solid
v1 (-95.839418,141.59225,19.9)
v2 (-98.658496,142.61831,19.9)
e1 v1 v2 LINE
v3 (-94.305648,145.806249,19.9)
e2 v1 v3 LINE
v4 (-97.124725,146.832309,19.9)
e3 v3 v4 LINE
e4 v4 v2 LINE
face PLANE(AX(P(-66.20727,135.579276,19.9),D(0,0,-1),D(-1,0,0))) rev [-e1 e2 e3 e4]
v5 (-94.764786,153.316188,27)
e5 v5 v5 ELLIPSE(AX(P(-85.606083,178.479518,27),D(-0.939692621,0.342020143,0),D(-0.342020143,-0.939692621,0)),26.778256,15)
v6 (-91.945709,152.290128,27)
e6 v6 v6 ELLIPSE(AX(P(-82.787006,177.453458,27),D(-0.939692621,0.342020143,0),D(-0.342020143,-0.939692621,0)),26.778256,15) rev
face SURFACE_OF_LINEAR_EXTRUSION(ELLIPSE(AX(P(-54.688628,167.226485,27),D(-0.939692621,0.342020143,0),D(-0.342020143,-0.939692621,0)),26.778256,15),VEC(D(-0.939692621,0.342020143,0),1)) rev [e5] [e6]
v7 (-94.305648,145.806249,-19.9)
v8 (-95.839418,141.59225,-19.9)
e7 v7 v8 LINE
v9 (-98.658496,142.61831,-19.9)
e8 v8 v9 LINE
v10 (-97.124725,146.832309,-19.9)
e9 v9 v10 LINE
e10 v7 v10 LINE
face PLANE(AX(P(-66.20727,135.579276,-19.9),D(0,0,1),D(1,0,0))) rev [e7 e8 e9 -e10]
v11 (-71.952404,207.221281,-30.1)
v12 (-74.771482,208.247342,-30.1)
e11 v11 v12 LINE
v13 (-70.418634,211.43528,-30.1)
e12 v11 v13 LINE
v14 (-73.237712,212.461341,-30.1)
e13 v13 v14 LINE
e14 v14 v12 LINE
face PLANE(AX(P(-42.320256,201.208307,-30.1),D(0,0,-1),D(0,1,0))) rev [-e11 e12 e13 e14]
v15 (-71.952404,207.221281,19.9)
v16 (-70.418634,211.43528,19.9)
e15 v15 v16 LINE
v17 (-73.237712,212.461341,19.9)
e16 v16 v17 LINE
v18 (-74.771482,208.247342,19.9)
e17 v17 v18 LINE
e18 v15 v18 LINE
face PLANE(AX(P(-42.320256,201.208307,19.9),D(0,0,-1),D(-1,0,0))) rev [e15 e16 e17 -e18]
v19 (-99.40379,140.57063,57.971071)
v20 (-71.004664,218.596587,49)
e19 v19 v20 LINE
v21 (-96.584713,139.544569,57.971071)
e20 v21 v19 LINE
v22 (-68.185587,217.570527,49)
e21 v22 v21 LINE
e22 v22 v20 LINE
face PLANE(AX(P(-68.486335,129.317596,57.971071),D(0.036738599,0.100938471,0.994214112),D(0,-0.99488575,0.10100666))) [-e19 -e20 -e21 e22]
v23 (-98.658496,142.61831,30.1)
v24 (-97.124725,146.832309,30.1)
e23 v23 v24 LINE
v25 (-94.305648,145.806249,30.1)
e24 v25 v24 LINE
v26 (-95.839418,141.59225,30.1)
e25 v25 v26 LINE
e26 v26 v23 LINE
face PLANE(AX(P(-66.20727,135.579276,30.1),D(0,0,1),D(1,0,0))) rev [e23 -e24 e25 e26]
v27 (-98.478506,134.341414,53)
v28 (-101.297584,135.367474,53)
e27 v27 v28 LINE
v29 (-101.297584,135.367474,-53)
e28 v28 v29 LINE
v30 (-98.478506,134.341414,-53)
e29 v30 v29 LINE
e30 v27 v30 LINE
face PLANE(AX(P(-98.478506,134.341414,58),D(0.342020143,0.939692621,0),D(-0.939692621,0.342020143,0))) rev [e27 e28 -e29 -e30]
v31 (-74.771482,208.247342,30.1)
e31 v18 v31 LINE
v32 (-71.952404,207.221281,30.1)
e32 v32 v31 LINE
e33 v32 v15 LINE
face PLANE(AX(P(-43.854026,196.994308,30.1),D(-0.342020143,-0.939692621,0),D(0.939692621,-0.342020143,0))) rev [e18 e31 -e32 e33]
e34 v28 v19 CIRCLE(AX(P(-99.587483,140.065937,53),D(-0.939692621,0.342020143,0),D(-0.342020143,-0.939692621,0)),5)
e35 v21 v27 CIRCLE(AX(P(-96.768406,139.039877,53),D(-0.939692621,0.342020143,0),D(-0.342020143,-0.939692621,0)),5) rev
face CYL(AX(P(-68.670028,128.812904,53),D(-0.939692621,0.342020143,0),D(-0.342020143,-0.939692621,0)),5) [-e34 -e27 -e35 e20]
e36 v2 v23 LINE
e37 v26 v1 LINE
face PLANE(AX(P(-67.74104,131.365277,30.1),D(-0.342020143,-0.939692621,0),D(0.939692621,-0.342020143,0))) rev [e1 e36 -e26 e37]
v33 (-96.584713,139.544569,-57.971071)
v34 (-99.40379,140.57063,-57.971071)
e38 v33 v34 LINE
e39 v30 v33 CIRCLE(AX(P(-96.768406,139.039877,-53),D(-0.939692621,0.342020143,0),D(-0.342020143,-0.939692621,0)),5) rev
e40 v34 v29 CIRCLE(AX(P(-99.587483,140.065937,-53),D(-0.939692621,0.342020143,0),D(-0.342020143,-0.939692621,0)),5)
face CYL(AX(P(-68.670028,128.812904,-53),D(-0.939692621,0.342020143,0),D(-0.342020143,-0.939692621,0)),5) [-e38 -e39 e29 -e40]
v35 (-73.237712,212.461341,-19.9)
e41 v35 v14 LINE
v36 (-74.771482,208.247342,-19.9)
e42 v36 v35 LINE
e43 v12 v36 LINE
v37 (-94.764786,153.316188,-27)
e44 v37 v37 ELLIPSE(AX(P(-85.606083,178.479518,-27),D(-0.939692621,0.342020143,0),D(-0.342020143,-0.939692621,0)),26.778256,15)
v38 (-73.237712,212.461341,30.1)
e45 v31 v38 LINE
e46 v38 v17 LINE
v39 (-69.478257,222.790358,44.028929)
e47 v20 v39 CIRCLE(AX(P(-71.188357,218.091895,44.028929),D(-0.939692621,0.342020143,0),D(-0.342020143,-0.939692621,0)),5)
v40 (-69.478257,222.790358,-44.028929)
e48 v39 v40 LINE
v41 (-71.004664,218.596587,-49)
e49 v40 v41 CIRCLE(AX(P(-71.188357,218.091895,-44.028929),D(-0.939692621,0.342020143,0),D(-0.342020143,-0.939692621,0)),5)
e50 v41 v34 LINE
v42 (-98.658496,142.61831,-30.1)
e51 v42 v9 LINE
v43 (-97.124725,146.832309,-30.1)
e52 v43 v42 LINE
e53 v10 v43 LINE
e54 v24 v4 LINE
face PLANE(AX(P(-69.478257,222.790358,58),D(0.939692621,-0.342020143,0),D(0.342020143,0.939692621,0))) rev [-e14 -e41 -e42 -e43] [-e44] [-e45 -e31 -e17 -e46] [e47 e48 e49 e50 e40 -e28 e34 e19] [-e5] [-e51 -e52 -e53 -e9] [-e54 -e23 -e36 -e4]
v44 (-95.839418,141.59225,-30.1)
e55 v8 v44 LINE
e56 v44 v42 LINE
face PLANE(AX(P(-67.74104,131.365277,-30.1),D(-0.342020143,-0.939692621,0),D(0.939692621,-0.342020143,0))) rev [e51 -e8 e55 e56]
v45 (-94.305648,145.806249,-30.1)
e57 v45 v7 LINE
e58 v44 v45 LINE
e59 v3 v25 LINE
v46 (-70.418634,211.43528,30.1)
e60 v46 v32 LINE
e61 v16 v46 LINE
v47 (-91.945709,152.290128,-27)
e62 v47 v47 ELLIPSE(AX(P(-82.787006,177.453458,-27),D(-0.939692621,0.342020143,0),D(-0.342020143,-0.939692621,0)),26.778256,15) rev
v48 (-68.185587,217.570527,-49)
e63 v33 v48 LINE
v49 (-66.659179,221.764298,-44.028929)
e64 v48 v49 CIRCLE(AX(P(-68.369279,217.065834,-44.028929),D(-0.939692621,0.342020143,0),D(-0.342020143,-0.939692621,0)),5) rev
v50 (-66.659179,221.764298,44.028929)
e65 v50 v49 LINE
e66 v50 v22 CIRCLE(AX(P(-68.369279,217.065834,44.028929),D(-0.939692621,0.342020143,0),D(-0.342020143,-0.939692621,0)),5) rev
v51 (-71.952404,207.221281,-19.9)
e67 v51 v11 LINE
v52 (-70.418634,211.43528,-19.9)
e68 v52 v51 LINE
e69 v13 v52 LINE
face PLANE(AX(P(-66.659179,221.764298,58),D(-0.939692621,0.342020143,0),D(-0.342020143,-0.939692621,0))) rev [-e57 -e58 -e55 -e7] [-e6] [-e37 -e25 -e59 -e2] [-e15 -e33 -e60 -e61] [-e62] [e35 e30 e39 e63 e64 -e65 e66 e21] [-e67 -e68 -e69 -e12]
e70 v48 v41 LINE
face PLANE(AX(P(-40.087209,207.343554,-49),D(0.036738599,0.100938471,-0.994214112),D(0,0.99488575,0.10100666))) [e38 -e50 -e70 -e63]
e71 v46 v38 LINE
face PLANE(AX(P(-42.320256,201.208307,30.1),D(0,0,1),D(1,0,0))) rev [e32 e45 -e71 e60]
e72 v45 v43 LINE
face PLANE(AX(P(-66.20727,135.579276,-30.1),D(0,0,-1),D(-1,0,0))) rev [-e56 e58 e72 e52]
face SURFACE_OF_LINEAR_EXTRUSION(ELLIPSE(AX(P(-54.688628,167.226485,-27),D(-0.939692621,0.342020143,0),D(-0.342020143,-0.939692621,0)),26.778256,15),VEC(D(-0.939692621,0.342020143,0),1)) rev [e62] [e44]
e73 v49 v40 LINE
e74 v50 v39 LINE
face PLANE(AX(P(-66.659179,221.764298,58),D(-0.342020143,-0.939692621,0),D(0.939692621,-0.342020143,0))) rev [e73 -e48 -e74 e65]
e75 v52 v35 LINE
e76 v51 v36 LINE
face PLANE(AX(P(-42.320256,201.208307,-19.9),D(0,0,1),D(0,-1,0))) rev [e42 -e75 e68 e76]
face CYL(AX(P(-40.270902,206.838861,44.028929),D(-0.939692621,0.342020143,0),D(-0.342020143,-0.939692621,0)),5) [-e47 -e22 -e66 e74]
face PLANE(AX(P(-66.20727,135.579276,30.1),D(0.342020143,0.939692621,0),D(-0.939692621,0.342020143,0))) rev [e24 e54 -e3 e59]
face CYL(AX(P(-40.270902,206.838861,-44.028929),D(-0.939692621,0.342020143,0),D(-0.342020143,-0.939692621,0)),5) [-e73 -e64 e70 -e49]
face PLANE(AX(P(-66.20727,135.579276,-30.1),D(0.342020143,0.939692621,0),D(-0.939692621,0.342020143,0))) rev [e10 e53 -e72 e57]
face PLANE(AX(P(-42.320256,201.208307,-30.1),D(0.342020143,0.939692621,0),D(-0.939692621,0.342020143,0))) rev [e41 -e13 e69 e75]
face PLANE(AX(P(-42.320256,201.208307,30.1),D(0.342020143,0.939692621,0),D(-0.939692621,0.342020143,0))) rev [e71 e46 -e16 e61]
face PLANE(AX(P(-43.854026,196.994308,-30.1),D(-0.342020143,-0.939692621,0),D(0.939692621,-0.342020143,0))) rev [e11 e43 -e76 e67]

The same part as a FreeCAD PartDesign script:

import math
import FreeCAD as App
import Part
import Sketcher
Q = App.Units.Quantity

doc = App.newDocument("Part")
params = doc.addObject("Spreadsheet::Sheet", "Params")
for row, (alias, value) in enumerate([
    ("sketch1_length", "3 mm"),
    ("pad1_length", "116 mm"),
    ("sketch2_radius", "5 mm"),
    ("sketch2_width", "106 mm"),
    ("pocket1_length", "3 mm"),
    ("sketch3_width", "10.2 mm"),
    ("sketch4_width", "10.2 mm"),
    ("sketch5_width", "10.2 mm"),
    ("sketch6_width", "10.2 mm"),
], start=1):
    params.set(f"A{row}", alias)
    params.set(f"B{row}", "=" + value)
    params.setAlias(f"B{row}", alias)

body = doc.addObject("PartDesign::Body", "Body")

sketch1 = body.newObject("Sketcher::SketchObject", "Sketch")
sketch1.AttachmentSupport = (doc.getObject("XY_Plane"), [""])
sketch1.MapMode = "FlatFace"
sketch1.addGeometry([
    Part.LineSegment(App.Vector(-66.7, 221.8, 0), App.Vector(-69.5, 222.8, 0)),
    Part.LineSegment(App.Vector(-69.5, 222.8, 0), App.Vector(-101.3, 135.4, 0)),
    Part.LineSegment(App.Vector(-101.3, 135.4, 0), App.Vector(-98.5, 134.3, 0)),
    Part.LineSegment(App.Vector(-98.5, 134.3, 0), App.Vector(-66.7, 221.8, 0)),
], False)
sketch1.addConstraint([
    Sketcher.Constraint("Coincident", 0, 2, 1, 1),
    Sketcher.Constraint("Coincident", 1, 2, 2, 1),
    Sketcher.Constraint("Coincident", 2, 2, 3, 1),
    Sketcher.Constraint("Coincident", 3, 2, 0, 1),
    Sketcher.Constraint("Perpendicular", 0, 1),
    Sketcher.Constraint("Perpendicular", 1, 2),
    Sketcher.Constraint("Perpendicular", 2, 3),
    Sketcher.Constraint("Angle", 0, Q("160 deg")),
    Sketcher.Constraint("Distance", 0, Q("3 mm")),
    Sketcher.Constraint("Distance", 1, Q("93.03349 mm")),
    Sketcher.Constraint("DistanceX", 3, 2, -1, 1, Q("66.659179 mm")),
    Sketcher.Constraint("DistanceY", -1, 1, 0, 2, Q("222.790358 mm")),
])
sketch1.setExpression("Constraints[8]", "Params.sketch1_length")
pad1 = body.newObject("PartDesign::Pad", "Pad")
pad1.Profile = sketch1
pad1.setExpression("Length", "Params.pad1_length")
pad1.Midplane = True

sketch2 = body.newObject("Sketcher::SketchObject", "Sketch001")
sketch2.Placement = App.Placement(App.Vector(-132.954285, 48.391402, 0), App.Rotation(App.Vector(0, 0, 1), App.Vector(0.342020143, 0.939692621, 0), App.Vector(-0.939692621, 0.342020143, 0), "ZXY"))
sketch2.addGeometry([
    Part.LineSegment(App.Vector(-74, 202.5, 0), App.Vector(-74, 75.6, 0)),
    Part.LineSegment(App.Vector(-74, 75.6, 0), App.Vector(74, 75.6, 0)),
    Part.LineSegment(App.Vector(74, 75.6, 0), App.Vector(74, 202.5, 0)),
    Part.LineSegment(App.Vector(74, 202.5, 0), App.Vector(-74, 202.5, 0)),
    Part.LineSegment(App.Vector(49, 181.1, 0), App.Vector(58, 98.1, 0)),
    Part.ArcOfCircle(Part.Circle(App.Vector(53, 97.6, 0), App.Vector(0, 0, 1), 5), math.radians(-90), math.radians(6)),
    Part.LineSegment(App.Vector(53, 92.6, 0), App.Vector(-53, 92.6, 0)),
    Part.ArcOfCircle(Part.Circle(App.Vector(-53, 97.6, 0), App.Vector(0, 0, 1), 5), math.radians(174), math.radians(270)),
    Part.LineSegment(App.Vector(-58, 98.1, 0), App.Vector(-49, 181.1, 0)),
    Part.ArcOfCircle(Part.Circle(App.Vector(-44, 180.6, 0), App.Vector(0, 0, 1), 5), math.radians(90), math.radians(174)),
    Part.LineSegment(App.Vector(-44, 185.6, 0), App.Vector(44, 185.6, 0)),
    Part.ArcOfCircle(Part.Circle(App.Vector(44, 180.6, 0), App.Vector(0, 0, 1), 5), math.radians(6), math.radians(90)),
], False)
sketch2.addConstraint([
    Sketcher.Constraint("Coincident", 0, 2, 1, 1),
    Sketcher.Constraint("Coincident", 1, 2, 2, 1),
    Sketcher.Constraint("Coincident", 2, 2, 3, 1),
    Sketcher.Constraint("Coincident", 3, 2, 0, 1),
    Sketcher.Constraint("Tangent", 4, 2, 5, 2),
    Sketcher.Constraint("Tangent", 5, 1, 6, 1),
    Sketcher.Constraint("Tangent", 6, 2, 7, 2),
    Sketcher.Constraint("Tangent", 7, 1, 8, 1),
    Sketcher.Constraint("Tangent", 8, 2, 9, 2),
    Sketcher.Constraint("Tangent", 9, 1, 10, 1),
    Sketcher.Constraint("Tangent", 10, 2, 11, 2),
    Sketcher.Constraint("Tangent", 11, 1, 4, 1),
    Sketcher.Constraint("Vertical", 0),
    Sketcher.Constraint("Horizontal", 1),
    Sketcher.Constraint("Vertical", 2),
    Sketcher.Constraint("Horizontal", 3),
    Sketcher.Constraint("Horizontal", 6),
    Sketcher.Constraint("Horizontal", 10),
    Sketcher.Constraint("Equal", 5, 7),
    Sketcher.Constraint("Equal", 7, 9),
    Sketcher.Constraint("Equal", 9, 11),
    Sketcher.Constraint("Symmetric", 4, 2, 7, 1, -2),
    Sketcher.Constraint("Radius", 5, Q("5 mm")),
    Sketcher.Constraint("DistanceX", 6, 2, 6, 1, Q("106 mm")),
    Sketcher.Constraint("DistanceX", 8, 2, -1, 1, Q("49 mm")),
    Sketcher.Constraint("DistanceX", 1, 1, 1, 2, Q("147.986 mm")),
    Sketcher.Constraint("DistanceY", 0, 2, 0, 1, Q("126.948 mm")),
    Sketcher.Constraint("DistanceX", 0, 2, -1, 1, Q("73.993 mm")),
    Sketcher.Constraint("DistanceY", -1, 1, 0, 2, Q("75.601 mm")),
    Sketcher.Constraint("DistanceY", 7, 3, 9, 3, Q("83.03349 mm")),
    Sketcher.Constraint("DistanceY", -1, 1, 5, 3, Q("97.558002 mm")),
])
sketch2.setExpression("Constraints[22]", "Params.sketch2_radius")
sketch2.setExpression("Constraints[23]", "Params.sketch2_width")
pocket1 = body.newObject("PartDesign::Pocket", "Pocket")
pocket1.Profile = sketch2
pocket1.setExpression("Length", "Params.pocket1_length")

sketch3 = body.newObject("Sketcher::SketchObject", "Sketch002")
sketch3.Placement = App.Placement(App.Vector(-132.954285, 48.391402, 0), App.Rotation(App.Vector(0, 0, 1), App.Vector(0.342020143, 0.939692621, 0), App.Vector(-0.939692621, 0.342020143, 0), "ZXY"))
sketch3.addGeometry([
    Part.LineSegment(App.Vector(-30.1, 174.6, 0), App.Vector(-30.1, 170.1, 0)),
    Part.LineSegment(App.Vector(-30.1, 170.1, 0), App.Vector(-19.9, 170.1, 0)),
    Part.LineSegment(App.Vector(-19.9, 170.1, 0), App.Vector(-19.9, 174.6, 0)),
    Part.LineSegment(App.Vector(-19.9, 174.6, 0), App.Vector(-30.1, 174.6, 0)),
], False)
sketch3.addConstraint([
    Sketcher.Constraint("Coincident", 0, 2, 1, 1),
    Sketcher.Constraint("Coincident", 1, 2, 2, 1),
    Sketcher.Constraint("Coincident", 2, 2, 3, 1),
    Sketcher.Constraint("Coincident", 3, 2, 0, 1),
    Sketcher.Constraint("Vertical", 0),
    Sketcher.Constraint("Horizontal", 1),
    Sketcher.Constraint("Vertical", 2),
    Sketcher.Constraint("Horizontal", 3),
    Sketcher.Constraint("DistanceX", 1, 1, 1, 2, Q("10.2 mm")),
    Sketcher.Constraint("DistanceX", 0, 2, -1, 1, Q("30.1 mm")),
    Sketcher.Constraint("DistanceY", 0, 2, 0, 1, Q("4.484444 mm")),
    Sketcher.Constraint("DistanceY", -1, 1, 2, 2, Q("174.599581 mm")),
])
sketch3.setExpression("Constraints[8]", "Params.sketch3_width")
pocket2 = body.newObject("PartDesign::Pocket", "Pocket001")
pocket2.Profile = sketch3
pocket2.Type = "UpToFirst"

sketch4 = body.newObject("Sketcher::SketchObject", "Sketch003")
sketch4.Placement = App.Placement(App.Vector(-132.954285, 48.391402, 0), App.Rotation(App.Vector(0, 0, 1), App.Vector(0.342020143, 0.939692621, 0), App.Vector(-0.939692621, 0.342020143, 0), "ZXY"))
sketch4.addGeometry([
    Part.LineSegment(App.Vector(-30.1, 104.8, 0), App.Vector(-30.1, 100.3, 0)),
    Part.LineSegment(App.Vector(-30.1, 100.3, 0), App.Vector(-19.9, 100.3, 0)),
    Part.LineSegment(App.Vector(-19.9, 100.3, 0), App.Vector(-19.9, 104.8, 0)),
    Part.LineSegment(App.Vector(-19.9, 104.8, 0), App.Vector(-30.1, 104.8, 0)),
], False)
sketch4.addConstraint([
    Sketcher.Constraint("Coincident", 0, 2, 1, 1),
    Sketcher.Constraint("Coincident", 1, 2, 2, 1),
    Sketcher.Constraint("Coincident", 2, 2, 3, 1),
    Sketcher.Constraint("Coincident", 3, 2, 0, 1),
    Sketcher.Constraint("Vertical", 0),
    Sketcher.Constraint("Horizontal", 1),
    Sketcher.Constraint("Vertical", 2),
    Sketcher.Constraint("Horizontal", 3),
    Sketcher.Constraint("DistanceX", 1, 1, 1, 2, Q("10.2 mm")),
    Sketcher.Constraint("DistanceX", 0, 2, -1, 1, Q("30.1 mm")),
    Sketcher.Constraint("DistanceY", 0, 2, 0, 1, Q("4.484444 mm")),
    Sketcher.Constraint("DistanceY", -1, 1, 0, 2, Q("100.274181 mm")),
])
sketch4.setExpression("Constraints[8]", "Params.sketch4_width")
pocket3 = body.newObject("PartDesign::Pocket", "Pocket002")
pocket3.Profile = sketch4
pocket3.Type = "UpToFirst"

sketch5 = body.newObject("Sketcher::SketchObject", "Sketch004")
sketch5.Placement = App.Placement(App.Vector(-132.954285, 48.391402, 0), App.Rotation(App.Vector(0, 0, 1), App.Vector(0.342020143, 0.939692621, 0), App.Vector(-0.939692621, 0.342020143, 0), "ZXY"))
sketch5.addGeometry([
    Part.LineSegment(App.Vector(19.9, 174.6, 0), App.Vector(19.9, 170.1, 0)),
    Part.LineSegment(App.Vector(19.9, 170.1, 0), App.Vector(30.1, 170.1, 0)),
    Part.LineSegment(App.Vector(30.1, 170.1, 0), App.Vector(30.1, 174.6, 0)),
    Part.LineSegment(App.Vector(30.1, 174.6, 0), App.Vector(19.9, 174.6, 0)),
], False)
sketch5.addConstraint([
    Sketcher.Constraint("Coincident", 0, 2, 1, 1),
    Sketcher.Constraint("Coincident", 1, 2, 2, 1),
    Sketcher.Constraint("Coincident", 2, 2, 3, 1),
    Sketcher.Constraint("Coincident", 3, 2, 0, 1),
    Sketcher.Constraint("Vertical", 0),
    Sketcher.Constraint("Horizontal", 1),
    Sketcher.Constraint("Vertical", 2),
    Sketcher.Constraint("Horizontal", 3),
    Sketcher.Constraint("DistanceX", 1, 1, 1, 2, Q("10.2 mm")),
    Sketcher.Constraint("DistanceX", -1, 1, 0, 2, Q("19.9 mm")),
    Sketcher.Constraint("DistanceY", 0, 2, 0, 1, Q("4.484444 mm")),
    Sketcher.Constraint("DistanceY", -1, 1, 2, 2, Q("174.599581 mm")),
])
sketch5.setExpression("Constraints[8]", "Params.sketch5_width")
pocket4 = body.newObject("PartDesign::Pocket", "Pocket003")
pocket4.Profile = sketch5
pocket4.Type = "UpToFirst"

sketch6 = body.newObject("Sketcher::SketchObject", "Sketch005")
sketch6.Placement = App.Placement(App.Vector(-132.954285, 48.391402, 0), App.Rotation(App.Vector(0, 0, 1), App.Vector(0.342020143, 0.939692621, 0), App.Vector(-0.939692621, 0.342020143, 0), "ZXY"))
sketch6.addGeometry([
    Part.LineSegment(App.Vector(19.9, 104.8, 0), App.Vector(19.9, 100.3, 0)),
    Part.LineSegment(App.Vector(19.9, 100.3, 0), App.Vector(30.1, 100.3, 0)),
    Part.LineSegment(App.Vector(30.1, 100.3, 0), App.Vector(30.1, 104.8, 0)),
    Part.LineSegment(App.Vector(30.1, 104.8, 0), App.Vector(19.9, 104.8, 0)),
], False)
sketch6.addConstraint([
    Sketcher.Constraint("Coincident", 0, 2, 1, 1),
    Sketcher.Constraint("Coincident", 1, 2, 2, 1),
    Sketcher.Constraint("Coincident", 2, 2, 3, 1),
    Sketcher.Constraint("Coincident", 3, 2, 0, 1),
    Sketcher.Constraint("Vertical", 0),
    Sketcher.Constraint("Horizontal", 1),
    Sketcher.Constraint("Vertical", 2),
    Sketcher.Constraint("Horizontal", 3),
    Sketcher.Constraint("DistanceX", 1, 1, 1, 2, Q("10.2 mm")),
    Sketcher.Constraint("DistanceX", -1, 1, 0, 2, Q("19.9 mm")),
    Sketcher.Constraint("DistanceY", 0, 2, 0, 1, Q("4.484444 mm")),
    Sketcher.Constraint("DistanceY", -1, 1, 0, 2, Q("100.274181 mm")),
])
sketch6.setExpression("Constraints[8]", "Params.sketch6_width")
pocket5 = body.newObject("PartDesign::Pocket", "Pocket004")
pocket5.Profile = sketch6
pocket5.Type = "UpToFirst"

sketch7 = body.newObject("Sketcher::SketchObject", "Sketch006")
sketch7.Placement = App.Placement(App.Vector(-132.954285, 48.391402, 0), App.Rotation(App.Vector(0, 0, 1), App.Vector(0.342020143, 0.939692621, 0), App.Vector(-0.939692621, 0.342020143, 0), "ZXY"))
sketch7.addGeometry(Part.Ellipse(App.Vector(-27, 111.658625, 0), App.Vector(-12, 138.436881, 0), App.Vector(-27, 138.436881, 0)), False)
sketch7.addConstraint(Sketcher.Constraint("Block", 0))
pocket6 = body.newObject("PartDesign::Pocket", "Pocket005")
pocket6.Profile = sketch7
pocket6.Type = "UpToFirst"

sketch8 = body.newObject("Sketcher::SketchObject", "Sketch007")
sketch8.Placement = App.Placement(App.Vector(-132.954285, 48.391402, 0), App.Rotation(App.Vector(0, 0, 1), App.Vector(0.342020143, 0.939692621, 0), App.Vector(-0.939692621, 0.342020143, 0), "ZXY"))
sketch8.addGeometry(Part.Ellipse(App.Vector(27, 111.658625, 0), App.Vector(42, 138.436881, 0), App.Vector(27, 138.436881, 0)), False)
sketch8.addConstraint(Sketcher.Constraint("Block", 0))
pocket7 = body.newObject("PartDesign::Pocket", "Pocket006")
pocket7.Profile = sketch8
pocket7.Type = "UpToFirst"

doc.recompute()
